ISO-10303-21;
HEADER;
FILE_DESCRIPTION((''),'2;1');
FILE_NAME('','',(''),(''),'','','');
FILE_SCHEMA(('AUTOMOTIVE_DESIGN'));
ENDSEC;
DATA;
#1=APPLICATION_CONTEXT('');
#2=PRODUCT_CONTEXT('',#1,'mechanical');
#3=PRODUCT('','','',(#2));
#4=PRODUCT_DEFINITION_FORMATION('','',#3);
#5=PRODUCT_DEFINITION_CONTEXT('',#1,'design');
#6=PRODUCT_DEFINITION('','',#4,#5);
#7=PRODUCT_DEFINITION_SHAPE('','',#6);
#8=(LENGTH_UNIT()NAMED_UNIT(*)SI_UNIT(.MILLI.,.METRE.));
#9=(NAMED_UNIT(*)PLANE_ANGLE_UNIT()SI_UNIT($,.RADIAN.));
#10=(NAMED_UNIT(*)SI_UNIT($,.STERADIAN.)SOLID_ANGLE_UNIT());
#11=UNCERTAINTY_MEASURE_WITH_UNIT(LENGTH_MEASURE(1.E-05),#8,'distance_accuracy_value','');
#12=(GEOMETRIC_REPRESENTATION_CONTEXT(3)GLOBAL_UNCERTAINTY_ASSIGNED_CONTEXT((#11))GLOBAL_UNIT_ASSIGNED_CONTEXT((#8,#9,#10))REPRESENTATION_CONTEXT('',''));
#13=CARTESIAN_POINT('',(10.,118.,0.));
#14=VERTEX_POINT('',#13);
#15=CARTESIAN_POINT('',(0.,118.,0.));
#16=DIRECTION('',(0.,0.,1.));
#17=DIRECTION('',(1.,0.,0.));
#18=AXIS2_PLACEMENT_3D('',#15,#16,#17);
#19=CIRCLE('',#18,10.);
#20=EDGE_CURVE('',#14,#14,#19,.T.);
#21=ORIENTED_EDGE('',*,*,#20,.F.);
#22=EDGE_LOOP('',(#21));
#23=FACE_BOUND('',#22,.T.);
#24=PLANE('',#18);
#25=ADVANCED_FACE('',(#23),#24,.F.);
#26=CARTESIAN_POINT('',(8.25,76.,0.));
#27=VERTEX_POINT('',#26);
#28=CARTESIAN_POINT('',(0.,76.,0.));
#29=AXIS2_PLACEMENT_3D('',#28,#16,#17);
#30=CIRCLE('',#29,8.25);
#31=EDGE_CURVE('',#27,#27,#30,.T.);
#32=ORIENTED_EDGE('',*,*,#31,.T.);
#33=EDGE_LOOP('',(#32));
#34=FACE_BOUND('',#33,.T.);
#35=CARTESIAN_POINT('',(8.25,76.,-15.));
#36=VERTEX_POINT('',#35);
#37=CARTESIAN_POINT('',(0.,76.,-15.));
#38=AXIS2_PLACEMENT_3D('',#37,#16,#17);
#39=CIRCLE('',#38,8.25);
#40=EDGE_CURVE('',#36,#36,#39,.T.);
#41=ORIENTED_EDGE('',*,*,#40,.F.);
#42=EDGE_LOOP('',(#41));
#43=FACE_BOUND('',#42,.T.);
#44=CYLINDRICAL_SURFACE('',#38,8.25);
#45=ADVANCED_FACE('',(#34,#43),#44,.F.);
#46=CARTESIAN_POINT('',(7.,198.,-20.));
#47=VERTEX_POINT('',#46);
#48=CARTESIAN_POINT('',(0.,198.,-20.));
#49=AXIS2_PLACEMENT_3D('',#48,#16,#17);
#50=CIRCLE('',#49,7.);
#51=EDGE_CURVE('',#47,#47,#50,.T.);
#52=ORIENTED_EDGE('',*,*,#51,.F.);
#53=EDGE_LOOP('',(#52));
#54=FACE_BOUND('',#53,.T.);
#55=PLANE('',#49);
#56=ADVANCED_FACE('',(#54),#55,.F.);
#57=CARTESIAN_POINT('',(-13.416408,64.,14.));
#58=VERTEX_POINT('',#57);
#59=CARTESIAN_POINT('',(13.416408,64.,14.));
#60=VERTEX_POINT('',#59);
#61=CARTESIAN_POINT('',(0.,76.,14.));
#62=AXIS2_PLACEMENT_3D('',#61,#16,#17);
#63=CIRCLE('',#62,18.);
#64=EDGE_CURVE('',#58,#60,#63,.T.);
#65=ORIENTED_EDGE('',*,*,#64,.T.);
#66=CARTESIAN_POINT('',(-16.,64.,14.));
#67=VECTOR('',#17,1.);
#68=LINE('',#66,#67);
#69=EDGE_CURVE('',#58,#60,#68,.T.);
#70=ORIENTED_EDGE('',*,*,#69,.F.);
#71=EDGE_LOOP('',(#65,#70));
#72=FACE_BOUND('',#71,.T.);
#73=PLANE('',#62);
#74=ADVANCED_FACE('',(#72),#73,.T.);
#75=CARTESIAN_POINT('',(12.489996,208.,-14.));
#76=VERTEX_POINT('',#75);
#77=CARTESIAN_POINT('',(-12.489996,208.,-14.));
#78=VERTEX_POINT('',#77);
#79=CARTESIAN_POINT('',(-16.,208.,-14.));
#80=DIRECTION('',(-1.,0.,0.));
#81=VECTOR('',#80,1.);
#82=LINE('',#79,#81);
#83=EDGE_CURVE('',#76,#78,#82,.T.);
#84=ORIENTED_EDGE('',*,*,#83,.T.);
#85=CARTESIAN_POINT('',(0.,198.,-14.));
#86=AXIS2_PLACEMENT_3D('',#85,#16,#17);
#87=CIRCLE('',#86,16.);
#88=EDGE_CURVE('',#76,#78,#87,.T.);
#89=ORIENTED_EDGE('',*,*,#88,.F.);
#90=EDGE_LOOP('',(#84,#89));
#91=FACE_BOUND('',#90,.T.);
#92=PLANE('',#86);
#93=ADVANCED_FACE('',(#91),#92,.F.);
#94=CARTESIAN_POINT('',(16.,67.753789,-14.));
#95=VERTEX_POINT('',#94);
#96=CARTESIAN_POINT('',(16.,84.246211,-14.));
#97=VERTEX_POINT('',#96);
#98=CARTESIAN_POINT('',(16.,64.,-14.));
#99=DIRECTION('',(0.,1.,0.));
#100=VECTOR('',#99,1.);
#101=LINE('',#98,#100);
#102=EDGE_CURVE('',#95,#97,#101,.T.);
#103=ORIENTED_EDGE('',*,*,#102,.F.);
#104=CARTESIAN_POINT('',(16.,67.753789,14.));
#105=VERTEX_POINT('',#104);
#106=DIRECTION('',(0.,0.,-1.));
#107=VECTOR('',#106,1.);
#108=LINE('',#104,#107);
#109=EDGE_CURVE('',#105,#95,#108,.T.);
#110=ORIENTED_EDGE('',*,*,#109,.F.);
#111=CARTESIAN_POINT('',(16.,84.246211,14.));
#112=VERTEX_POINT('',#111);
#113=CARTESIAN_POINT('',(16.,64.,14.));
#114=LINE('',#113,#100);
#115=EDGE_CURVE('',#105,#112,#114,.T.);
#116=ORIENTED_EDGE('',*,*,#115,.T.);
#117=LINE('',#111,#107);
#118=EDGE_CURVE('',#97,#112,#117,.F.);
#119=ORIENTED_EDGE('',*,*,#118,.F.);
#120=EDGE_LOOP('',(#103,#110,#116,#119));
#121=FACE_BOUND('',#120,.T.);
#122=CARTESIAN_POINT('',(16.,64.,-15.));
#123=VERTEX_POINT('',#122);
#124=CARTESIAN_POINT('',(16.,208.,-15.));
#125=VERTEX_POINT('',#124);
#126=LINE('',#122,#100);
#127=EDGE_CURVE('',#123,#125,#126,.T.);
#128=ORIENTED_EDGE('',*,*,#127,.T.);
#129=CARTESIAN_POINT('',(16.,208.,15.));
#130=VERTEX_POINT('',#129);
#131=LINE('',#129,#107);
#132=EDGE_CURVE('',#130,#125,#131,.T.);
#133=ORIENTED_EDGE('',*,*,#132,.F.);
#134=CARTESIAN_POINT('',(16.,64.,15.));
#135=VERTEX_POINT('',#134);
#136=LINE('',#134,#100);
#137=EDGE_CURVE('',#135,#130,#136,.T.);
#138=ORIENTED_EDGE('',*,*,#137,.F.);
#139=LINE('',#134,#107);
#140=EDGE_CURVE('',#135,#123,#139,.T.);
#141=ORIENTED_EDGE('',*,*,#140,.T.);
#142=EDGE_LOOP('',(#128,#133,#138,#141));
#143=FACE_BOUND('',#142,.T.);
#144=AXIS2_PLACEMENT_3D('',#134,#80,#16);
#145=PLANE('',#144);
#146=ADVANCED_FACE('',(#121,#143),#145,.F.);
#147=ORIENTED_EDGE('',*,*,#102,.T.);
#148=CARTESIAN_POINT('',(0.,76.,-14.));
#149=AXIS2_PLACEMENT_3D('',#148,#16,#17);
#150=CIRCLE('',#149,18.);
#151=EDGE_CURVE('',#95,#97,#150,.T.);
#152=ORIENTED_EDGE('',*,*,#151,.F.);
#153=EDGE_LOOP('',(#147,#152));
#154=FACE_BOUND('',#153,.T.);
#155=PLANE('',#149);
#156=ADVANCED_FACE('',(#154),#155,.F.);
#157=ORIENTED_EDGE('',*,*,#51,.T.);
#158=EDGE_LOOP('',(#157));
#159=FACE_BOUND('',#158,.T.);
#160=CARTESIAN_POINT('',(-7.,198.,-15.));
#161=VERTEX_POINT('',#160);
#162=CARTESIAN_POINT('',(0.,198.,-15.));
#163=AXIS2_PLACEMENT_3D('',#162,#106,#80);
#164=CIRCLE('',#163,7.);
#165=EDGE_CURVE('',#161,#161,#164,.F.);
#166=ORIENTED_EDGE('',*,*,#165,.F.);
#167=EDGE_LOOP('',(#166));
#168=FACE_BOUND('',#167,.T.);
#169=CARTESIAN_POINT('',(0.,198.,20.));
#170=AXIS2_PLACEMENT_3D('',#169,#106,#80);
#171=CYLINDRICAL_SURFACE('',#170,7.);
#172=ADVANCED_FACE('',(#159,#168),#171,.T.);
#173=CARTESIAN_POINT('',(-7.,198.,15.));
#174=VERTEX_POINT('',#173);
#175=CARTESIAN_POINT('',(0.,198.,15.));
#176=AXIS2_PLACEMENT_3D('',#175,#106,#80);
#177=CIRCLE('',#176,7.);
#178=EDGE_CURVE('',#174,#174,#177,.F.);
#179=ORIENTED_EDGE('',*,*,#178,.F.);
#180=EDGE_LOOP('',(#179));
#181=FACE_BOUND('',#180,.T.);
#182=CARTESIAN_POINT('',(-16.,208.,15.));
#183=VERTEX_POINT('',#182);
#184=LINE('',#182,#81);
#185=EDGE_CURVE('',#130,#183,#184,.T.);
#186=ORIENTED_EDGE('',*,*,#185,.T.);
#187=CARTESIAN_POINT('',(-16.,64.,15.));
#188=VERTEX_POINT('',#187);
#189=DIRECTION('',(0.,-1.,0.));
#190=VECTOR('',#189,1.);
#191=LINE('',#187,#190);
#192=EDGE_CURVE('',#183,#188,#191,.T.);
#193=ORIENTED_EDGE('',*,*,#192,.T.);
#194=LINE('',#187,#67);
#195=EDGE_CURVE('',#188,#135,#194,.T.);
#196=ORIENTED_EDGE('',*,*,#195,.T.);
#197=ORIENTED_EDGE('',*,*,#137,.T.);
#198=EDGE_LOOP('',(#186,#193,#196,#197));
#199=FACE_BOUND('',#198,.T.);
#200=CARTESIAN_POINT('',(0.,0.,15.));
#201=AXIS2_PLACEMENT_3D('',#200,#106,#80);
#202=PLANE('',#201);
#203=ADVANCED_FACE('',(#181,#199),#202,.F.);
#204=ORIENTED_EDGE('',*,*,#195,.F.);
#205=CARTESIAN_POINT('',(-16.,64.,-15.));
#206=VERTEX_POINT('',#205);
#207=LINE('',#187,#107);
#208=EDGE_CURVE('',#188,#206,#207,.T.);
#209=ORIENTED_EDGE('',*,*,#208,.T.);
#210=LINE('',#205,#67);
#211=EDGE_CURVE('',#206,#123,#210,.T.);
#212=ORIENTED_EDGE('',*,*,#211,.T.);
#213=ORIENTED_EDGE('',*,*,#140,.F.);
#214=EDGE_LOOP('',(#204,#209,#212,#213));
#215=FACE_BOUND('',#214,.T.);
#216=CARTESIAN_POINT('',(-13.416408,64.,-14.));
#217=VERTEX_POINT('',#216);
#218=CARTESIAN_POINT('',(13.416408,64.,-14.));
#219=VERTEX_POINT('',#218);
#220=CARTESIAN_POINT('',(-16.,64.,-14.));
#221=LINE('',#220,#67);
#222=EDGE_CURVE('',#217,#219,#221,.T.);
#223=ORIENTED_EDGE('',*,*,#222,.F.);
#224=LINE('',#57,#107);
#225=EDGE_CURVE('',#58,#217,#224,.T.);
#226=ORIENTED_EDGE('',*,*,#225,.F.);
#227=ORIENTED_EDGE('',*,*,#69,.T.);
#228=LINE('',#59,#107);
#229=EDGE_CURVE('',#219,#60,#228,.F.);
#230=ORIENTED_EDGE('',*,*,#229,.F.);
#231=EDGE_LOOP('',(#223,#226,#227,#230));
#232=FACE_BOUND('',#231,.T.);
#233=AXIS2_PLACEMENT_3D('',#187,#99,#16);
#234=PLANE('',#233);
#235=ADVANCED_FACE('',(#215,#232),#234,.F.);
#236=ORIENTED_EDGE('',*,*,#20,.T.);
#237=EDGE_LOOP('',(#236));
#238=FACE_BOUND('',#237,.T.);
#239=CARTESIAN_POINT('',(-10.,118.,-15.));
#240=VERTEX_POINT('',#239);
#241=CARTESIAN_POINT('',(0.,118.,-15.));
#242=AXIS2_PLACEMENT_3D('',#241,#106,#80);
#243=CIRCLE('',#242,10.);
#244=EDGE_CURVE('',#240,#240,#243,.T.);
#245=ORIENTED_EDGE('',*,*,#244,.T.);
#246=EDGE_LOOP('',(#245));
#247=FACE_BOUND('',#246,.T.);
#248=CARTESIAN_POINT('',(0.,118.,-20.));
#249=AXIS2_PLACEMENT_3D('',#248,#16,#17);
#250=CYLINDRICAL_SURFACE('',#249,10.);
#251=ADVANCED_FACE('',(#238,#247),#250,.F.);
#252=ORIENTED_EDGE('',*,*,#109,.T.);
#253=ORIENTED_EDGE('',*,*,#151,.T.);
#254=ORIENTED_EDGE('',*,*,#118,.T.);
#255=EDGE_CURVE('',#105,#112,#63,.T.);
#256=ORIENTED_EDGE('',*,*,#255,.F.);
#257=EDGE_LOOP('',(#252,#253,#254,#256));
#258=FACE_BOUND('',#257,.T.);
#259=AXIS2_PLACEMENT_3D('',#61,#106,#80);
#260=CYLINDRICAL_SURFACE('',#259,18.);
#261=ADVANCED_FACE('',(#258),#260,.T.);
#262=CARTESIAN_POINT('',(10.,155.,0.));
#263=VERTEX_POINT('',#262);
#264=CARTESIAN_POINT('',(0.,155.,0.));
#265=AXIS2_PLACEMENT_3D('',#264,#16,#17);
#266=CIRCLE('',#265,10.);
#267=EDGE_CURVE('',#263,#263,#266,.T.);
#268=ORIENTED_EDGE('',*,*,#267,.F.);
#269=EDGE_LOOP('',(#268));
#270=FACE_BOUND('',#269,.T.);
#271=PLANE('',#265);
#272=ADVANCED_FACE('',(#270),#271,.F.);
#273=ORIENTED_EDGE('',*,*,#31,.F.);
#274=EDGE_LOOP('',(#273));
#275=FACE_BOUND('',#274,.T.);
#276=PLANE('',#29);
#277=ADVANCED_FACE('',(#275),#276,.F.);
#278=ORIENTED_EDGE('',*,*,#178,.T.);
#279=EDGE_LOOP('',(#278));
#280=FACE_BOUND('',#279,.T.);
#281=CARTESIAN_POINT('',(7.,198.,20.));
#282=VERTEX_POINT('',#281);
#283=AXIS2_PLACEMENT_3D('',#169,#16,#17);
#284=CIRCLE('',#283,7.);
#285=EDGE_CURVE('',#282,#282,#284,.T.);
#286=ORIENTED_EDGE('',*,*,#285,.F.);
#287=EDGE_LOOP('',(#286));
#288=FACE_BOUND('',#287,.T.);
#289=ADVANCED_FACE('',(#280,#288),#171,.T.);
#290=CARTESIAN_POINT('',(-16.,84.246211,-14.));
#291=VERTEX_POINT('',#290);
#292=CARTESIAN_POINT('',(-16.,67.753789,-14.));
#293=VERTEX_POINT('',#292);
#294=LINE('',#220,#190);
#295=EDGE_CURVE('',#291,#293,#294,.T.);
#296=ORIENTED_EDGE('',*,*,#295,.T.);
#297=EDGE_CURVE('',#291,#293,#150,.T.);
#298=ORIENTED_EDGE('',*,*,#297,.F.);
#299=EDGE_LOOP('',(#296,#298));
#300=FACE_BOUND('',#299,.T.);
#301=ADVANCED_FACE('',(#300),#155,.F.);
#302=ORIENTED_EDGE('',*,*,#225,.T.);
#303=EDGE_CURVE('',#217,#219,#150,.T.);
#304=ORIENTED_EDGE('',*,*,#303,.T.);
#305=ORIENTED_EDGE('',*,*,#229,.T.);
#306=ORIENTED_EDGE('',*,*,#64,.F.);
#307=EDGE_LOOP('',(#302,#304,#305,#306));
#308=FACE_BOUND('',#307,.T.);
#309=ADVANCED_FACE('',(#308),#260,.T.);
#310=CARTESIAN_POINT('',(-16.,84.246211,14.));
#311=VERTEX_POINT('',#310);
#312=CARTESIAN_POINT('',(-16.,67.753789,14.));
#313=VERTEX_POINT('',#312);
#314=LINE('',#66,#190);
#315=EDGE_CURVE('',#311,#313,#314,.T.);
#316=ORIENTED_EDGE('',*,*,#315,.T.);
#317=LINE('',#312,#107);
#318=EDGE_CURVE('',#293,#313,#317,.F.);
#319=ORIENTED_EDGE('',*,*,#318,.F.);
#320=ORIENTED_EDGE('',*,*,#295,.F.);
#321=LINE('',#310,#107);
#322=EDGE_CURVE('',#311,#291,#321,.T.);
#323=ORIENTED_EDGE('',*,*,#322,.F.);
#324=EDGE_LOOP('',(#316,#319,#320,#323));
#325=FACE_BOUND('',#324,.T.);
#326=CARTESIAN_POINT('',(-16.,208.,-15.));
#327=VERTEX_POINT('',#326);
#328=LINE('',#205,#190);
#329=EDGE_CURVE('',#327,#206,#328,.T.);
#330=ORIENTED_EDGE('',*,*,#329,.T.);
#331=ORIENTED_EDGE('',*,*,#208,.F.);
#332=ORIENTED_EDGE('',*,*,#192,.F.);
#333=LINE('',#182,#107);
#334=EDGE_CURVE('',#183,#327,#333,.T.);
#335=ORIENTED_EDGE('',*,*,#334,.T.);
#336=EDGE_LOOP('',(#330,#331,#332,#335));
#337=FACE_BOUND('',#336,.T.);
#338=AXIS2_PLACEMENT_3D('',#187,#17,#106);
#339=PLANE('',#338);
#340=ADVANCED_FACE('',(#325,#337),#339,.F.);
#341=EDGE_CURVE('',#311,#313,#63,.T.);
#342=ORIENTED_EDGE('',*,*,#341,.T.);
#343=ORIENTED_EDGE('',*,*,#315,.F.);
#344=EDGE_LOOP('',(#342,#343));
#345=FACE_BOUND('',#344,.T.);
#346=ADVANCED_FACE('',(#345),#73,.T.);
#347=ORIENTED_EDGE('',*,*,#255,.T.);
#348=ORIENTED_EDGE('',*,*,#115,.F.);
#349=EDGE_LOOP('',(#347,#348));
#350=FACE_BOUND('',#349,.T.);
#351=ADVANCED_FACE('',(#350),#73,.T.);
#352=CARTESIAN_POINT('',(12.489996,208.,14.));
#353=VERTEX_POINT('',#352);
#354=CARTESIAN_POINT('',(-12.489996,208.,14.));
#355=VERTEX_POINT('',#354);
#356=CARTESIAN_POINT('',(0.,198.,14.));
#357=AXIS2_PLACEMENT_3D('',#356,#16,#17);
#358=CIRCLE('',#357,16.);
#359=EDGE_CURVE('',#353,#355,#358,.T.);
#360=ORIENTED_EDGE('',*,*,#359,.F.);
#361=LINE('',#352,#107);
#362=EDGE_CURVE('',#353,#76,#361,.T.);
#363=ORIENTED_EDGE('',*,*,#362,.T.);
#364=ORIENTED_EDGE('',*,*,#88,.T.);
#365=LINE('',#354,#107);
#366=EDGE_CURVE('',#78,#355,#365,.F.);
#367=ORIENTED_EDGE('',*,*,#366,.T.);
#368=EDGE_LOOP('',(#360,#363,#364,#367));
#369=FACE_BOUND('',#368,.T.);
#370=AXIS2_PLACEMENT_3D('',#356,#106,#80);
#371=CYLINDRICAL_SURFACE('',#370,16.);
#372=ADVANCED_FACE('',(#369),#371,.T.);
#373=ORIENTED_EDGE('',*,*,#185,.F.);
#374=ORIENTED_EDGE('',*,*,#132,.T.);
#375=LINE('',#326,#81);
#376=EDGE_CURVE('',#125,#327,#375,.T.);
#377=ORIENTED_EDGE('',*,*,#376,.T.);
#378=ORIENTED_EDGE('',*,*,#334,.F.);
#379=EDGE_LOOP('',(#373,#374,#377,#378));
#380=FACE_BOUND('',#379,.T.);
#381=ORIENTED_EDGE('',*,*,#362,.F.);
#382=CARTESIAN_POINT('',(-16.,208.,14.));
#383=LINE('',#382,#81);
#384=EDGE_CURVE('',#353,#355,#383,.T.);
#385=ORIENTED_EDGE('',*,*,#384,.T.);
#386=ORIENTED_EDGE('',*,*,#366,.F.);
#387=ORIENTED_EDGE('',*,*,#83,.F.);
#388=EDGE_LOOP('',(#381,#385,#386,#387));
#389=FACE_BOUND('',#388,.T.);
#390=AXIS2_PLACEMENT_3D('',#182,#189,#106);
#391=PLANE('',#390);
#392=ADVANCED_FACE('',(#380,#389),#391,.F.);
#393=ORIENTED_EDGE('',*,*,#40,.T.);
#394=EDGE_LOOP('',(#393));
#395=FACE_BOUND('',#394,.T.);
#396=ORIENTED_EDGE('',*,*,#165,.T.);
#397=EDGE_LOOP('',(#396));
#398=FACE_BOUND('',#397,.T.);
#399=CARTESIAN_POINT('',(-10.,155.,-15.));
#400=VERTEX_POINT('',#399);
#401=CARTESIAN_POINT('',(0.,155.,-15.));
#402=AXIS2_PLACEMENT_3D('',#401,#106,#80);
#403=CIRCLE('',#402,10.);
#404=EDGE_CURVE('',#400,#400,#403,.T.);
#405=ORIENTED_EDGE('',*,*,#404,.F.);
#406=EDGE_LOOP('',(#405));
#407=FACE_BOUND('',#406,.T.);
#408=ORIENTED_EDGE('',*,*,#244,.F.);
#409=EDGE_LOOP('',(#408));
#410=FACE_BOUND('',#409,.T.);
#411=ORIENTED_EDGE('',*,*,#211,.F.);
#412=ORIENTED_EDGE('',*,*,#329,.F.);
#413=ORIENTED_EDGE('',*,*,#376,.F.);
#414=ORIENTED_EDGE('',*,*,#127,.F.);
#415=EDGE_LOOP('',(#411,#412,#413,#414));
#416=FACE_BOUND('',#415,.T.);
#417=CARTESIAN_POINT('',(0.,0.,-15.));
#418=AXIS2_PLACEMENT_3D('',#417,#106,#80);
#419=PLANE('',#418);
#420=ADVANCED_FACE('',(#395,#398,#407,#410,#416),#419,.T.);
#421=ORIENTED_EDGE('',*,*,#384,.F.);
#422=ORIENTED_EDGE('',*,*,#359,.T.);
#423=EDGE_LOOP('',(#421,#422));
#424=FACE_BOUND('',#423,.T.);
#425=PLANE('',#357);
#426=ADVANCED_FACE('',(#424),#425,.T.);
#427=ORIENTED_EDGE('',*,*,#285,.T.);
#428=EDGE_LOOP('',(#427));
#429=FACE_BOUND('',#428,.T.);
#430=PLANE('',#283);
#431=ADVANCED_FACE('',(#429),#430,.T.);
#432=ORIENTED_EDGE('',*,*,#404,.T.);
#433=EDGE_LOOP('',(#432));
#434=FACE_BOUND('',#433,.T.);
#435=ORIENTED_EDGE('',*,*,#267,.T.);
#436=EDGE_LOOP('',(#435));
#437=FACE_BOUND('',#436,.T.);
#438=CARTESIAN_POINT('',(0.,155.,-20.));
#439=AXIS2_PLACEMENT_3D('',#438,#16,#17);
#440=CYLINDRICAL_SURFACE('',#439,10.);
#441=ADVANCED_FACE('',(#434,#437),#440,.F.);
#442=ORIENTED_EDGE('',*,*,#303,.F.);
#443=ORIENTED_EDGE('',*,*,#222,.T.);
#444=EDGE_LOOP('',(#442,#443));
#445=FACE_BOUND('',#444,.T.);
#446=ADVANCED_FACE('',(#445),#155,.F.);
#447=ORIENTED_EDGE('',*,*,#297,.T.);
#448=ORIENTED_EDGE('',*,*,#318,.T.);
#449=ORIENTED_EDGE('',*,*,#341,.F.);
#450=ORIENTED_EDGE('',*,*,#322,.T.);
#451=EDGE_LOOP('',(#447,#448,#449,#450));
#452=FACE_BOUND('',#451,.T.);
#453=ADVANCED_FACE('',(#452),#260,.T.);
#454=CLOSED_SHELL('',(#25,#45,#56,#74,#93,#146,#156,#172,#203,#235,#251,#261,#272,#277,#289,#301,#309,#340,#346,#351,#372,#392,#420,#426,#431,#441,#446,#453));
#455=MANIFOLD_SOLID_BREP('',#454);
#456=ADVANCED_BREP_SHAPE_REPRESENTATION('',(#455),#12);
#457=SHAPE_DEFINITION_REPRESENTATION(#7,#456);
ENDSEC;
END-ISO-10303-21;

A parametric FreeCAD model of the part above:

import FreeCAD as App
import Part
import Sketcher
from FreeCAD import Vector
Q = App.Units.Quantity

doc = App.newDocument("Part")
body = doc.addObject("PartDesign::Body", "Body")

# Sketch on XY plane
sketch1 = doc.addObject("Sketcher::SketchObject", "Sketch")
body.addObject(sketch1)
sketch1.AttachmentSupport = (doc.XY_Plane, [""])
sketch1.MapMode = "FlatFace"
sketch1.addGeometry([
    Part.LineSegment(Vector(-16, 208, 0), Vector(-16, 64, 0)),
    Part.LineSegment(Vector(-16, 64, 0), Vector(16, 64, 0)),
    Part.LineSegment(Vector(16, 64, 0), Vector(16, 208, 0)),
    Part.LineSegment(Vector(16, 208, 0), Vector(-16, 208, 0)),
], False)
sketch1.addConstraint([
    Sketcher.Constraint("Coincident", 0, 2, 1, 1),
    Sketcher.Constraint("Coincident", 1, 2, 2, 1),
    Sketcher.Constraint("Coincident", 2, 2, 3, 1),
    Sketcher.Constraint("Coincident", 3, 2, 0, 1),
    Sketcher.Constraint("Vertical", 0),
    Sketcher.Constraint("Horizontal", 1),
    Sketcher.Constraint("Vertical", 2),
    Sketcher.Constraint("Horizontal", 3),
    Sketcher.Constraint("DistanceX", 1, 1, 1, 2, Q("32 mm")),
    Sketcher.Constraint("DistanceY", 0, 2, 0, 1, Q("144 mm")),
    Sketcher.Constraint("DistanceX", 0, 2, -1, 1, Q("16 mm")),
    Sketcher.Constraint("DistanceY", -1, 1, 0, 2, Q("64 mm")),
])
pad1 = doc.addObject("PartDesign::Pad", "Pad")
body.addObject(pad1)
pad1.Profile = sketch1
pad1.Length = 30
pad1.Midplane = True

# Sketch on XY plane
sketch2 = doc.addObject("Sketcher::SketchObject", "Sketch001")
body.addObject(sketch2)
sketch2.AttachmentSupport = (doc.XY_Plane, [""])
sketch2.MapMode = "FlatFace"
sketch2.addGeometry(Part.Circle(Vector(0, 76, 0), Vector(0, 0, 1), 18), False)
sketch2.addConstraint([
    Sketcher.Constraint("PointOnObject", 0, 3, -2),
    Sketcher.Constraint("Diameter", 0, Q("36 mm")),
    Sketcher.Constraint("DistanceY", -1, 1, 0, 3, Q("76 mm")),
])
pad2 = doc.addObject("PartDesign::Pad", "Pad001")
body.addObject(pad2)
pad2.Profile = sketch2
pad2.Length = 28
pad2.Midplane = True

# Sketch on XY plane
sketch3 = doc.addObject("Sketcher::SketchObject", "Sketch002")
body.addObject(sketch3)
sketch3.AttachmentSupport = (doc.XY_Plane, [""])
sketch3.MapMode = "FlatFace"
sketch3.addGeometry(Part.Circle(Vector(0, 198, 0), Vector(0, 0, 1), 16), False)
sketch3.addConstraint([
    Sketcher.Constraint("PointOnObject", 0, 3, -2),
    Sketcher.Constraint("Diameter", 0, Q("32 mm")),
    Sketcher.Constraint("DistanceY", -1, 1, 0, 3, Q("198 mm")),
])
pad3 = doc.addObject("PartDesign::Pad", "Pad002")
body.addObject(pad3)
pad3.Profile = sketch3
pad3.Length = 28
pad3.Midplane = True

# Sketch on XY plane
sketch4 = doc.addObject("Sketcher::SketchObject", "Sketch003")
body.addObject(sketch4)
sketch4.AttachmentSupport = (doc.XY_Plane, [""])
sketch4.MapMode = "FlatFace"
sketch4.addGeometry(Part.Circle(Vector(0, 76, 0), Vector(0, 0, 1), 8), False)
sketch4.addConstraint([
    Sketcher.Constraint("PointOnObject", 0, 3, -2),
    Sketcher.Constraint("Diameter", 0, Q("16.5 mm")),
    Sketcher.Constraint("DistanceY", -1, 1, 0, 3, Q("76 mm")),
])
pocket1 = doc.addObject("PartDesign::Pocket", "Pocket")
body.addObject(pocket1)
pocket1.Profile = sketch4
pocket1.Type = "ThroughAll"

# Sketch on XY plane
sketch5 = doc.addObject("Sketcher::SketchObject", "Sketch004")
body.addObject(sketch5)
sketch5.AttachmentSupport = (doc.XY_Plane, [""])
sketch5.MapMode = "FlatFace"
sketch5.addGeometry(Part.Circle(Vector(0, 198, 0), Vector(0, 0, 1), 7), False)
sketch5.addConstraint([
    Sketcher.Constraint("PointOnObject", 0, 3, -2),
    Sketcher.Constraint("Diameter", 0, Q("14 mm")),
    Sketcher.Constraint("DistanceY", -1, 1, 0, 3, Q("198 mm")),
])
pad4 = doc.addObject("PartDesign::Pad", "Pad003")
body.addObject(pad4)
pad4.Profile = sketch5
pad4.Length = 40
pad4.Midplane = True

# Sketch on XY plane
sketch6 = doc.addObject("Sketcher::SketchObject", "Sketch005")
body.addObject(sketch6)
sketch6.AttachmentSupport = (doc.XY_Plane, [""])
sketch6.MapMode = "FlatFace"
sketch6.addGeometry([
    Part.Circle(Vector(0, 118, 0), Vector(0, 0, 1), 10),
    Part.Circle(Vector(0, 155, 0), Vector(0, 0, 1), 10),
], False)
sketch6.addConstraint([
    Sketcher.Constraint("Equal", 0, 1),
    Sketcher.Constraint("PointOnObject", 0, 3, -2),
    Sketcher.Constraint("PointOnObject", 1, 3, -2),
    Sketcher.Constraint("Diameter", 0, Q("20 mm")),
    Sketcher.Constraint("DistanceY", -1, 1, 0, 3, Q("118 mm")),
    Sketcher.Constraint("DistanceY", -1, 1, 1, 3, Q("155 mm")),
])
pocket2 = doc.addObject("PartDesign::Pocket", "Pocket001")
body.addObject(pocket2)
pocket2.Profile = sketch6
pocket2.Type = "ThroughAll"

doc.recompute()
